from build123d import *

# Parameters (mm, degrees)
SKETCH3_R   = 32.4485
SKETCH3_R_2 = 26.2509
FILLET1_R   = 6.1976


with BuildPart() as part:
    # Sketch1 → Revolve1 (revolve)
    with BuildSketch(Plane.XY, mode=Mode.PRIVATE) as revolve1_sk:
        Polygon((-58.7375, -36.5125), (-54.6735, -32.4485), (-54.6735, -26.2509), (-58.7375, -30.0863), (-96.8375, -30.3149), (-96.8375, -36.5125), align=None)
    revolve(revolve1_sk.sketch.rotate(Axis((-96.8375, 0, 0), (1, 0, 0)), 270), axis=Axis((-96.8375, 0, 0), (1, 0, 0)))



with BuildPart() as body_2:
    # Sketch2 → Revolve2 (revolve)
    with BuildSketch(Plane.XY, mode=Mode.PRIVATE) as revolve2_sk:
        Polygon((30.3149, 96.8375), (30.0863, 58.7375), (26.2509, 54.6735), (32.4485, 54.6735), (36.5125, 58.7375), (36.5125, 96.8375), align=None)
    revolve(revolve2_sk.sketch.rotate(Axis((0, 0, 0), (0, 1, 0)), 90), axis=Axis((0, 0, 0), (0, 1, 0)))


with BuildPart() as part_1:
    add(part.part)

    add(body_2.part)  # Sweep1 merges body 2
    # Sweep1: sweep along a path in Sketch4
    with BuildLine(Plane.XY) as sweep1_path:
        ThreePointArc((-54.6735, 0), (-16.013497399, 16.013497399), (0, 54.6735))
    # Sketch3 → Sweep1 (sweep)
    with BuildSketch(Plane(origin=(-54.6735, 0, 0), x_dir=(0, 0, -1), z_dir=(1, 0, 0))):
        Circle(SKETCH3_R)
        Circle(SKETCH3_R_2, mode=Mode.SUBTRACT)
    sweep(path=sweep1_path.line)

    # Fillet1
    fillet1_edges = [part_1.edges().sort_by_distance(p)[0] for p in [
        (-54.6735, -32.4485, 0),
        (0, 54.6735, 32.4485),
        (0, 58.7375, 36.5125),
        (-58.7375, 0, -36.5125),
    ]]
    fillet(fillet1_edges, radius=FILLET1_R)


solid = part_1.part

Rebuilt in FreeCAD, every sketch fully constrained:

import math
import FreeCAD as App
import Part
import Sketcher

V = App.Vector
Q = App.Units.Quantity


def edges_at(feature, points):
    """Names of the edges that pass closest to the given points."""
    edges = feature.Shape.Edges
    near = lambda p: min(range(len(edges)), key=lambda i: edges[i].distToShape(Part.Vertex(*p))[0])
    return sorted({f"Edge{near(p) + 1}" for p in points})

doc = App.newDocument("Part")
body = doc.addObject("PartDesign::Body", "Body")

sketch1 = body.newObject("Sketcher::SketchObject", "Sketch")
sketch1.AttachmentSupport = (doc.getObject("XY_Plane"), [""])
sketch1.MapMode = "FlatFace"
sketch1.addGeometry([
    Part.LineSegment(V(-59, -37, 0), V(-55, -32, 0)),
    Part.LineSegment(V(-55, -32, 0), V(-55, -26, 0)),
    Part.LineSegment(V(-55, -26, 0), V(-59, -30, 0)),
    Part.LineSegment(V(-59, -30, 0), V(-97, -30, 0)),
    Part.LineSegment(V(-97, -30, 0), V(-97, -37, 0)),
    Part.LineSegment(V(-97, -37, 0), V(-59, -37, 0)),
], False)
sketch1.addConstraint([
    Sketcher.Constraint("Coincident", 0, 2, 1, 1),
    Sketcher.Constraint("Coincident", 1, 2, 2, 1),
    Sketcher.Constraint("Coincident", 2, 2, 3, 1),
    Sketcher.Constraint("Coincident", 3, 2, 4, 1),
    Sketcher.Constraint("Coincident", 4, 2, 5, 1),
    Sketcher.Constraint("Coincident", 5, 2, 0, 1),
    Sketcher.Constraint("Vertical", 1),
    Sketcher.Constraint("Vertical", 4),
    Sketcher.Constraint("Horizontal", 5),
    Sketcher.Constraint("Vertical", 2, 2, 5, 2),
    Sketcher.Constraint("Equal", 1, 4),
    Sketcher.Constraint("DistanceX", 5, 1, 5, 2, Q("1.5 in")),
    Sketcher.Constraint("Angle", 0, Q("45 deg")),
    Sketcher.Constraint("DistanceY", 1, 1, 1, 2, Q("0.244 in")),
    Sketcher.Constraint("DistanceX", 2, 2, 0, 2, Q("0.16 in")),
    Sketcher.Constraint("DistanceX", 2, 2, -1, 1, Q("2.3125 in")),
    Sketcher.Constraint("DistanceY", 4, 2, -1, 1, Q("1.4375 in")),
    Sketcher.Constraint("DistanceY", 0, 2, 2, 2, Q("0.093 in")),
])
revolution = body.newObject("PartDesign::Revolution", "Revolution")
revolution.Profile = sketch1
revolution.ReferenceAxis = (sketch1, ["H_Axis"])
revolution.Angle = 360
body2 = doc.addObject("PartDesign::Body", "Body001")

sketch2 = body2.newObject("Sketcher::SketchObject", "Sketch001")
sketch2.AttachmentSupport = (doc.getObject("XY_Plane001"), [""])
sketch2.MapMode = "FlatFace"
sketch2.addGeometry([
    Part.LineSegment(V(30, 97, 0), V(30, 59, 0)),
    Part.LineSegment(V(30, 59, 0), V(26, 55, 0)),
    Part.LineSegment(V(26, 55, 0), V(32, 55, 0)),
    Part.LineSegment(V(32, 55, 0), V(37, 59, 0)),
    Part.LineSegment(V(37, 59, 0), V(37, 97, 0)),
    Part.LineSegment(V(37, 97, 0), V(30, 97, 0)),
], False)
sketch2.addConstraint([
    Sketcher.Constraint("Coincident", 0, 2, 1, 1),
    Sketcher.Constraint("Coincident", 1, 2, 2, 1),
    Sketcher.Constraint("Coincident", 2, 2, 3, 1),
    Sketcher.Constraint("Coincident", 3, 2, 4, 1),
    Sketcher.Constraint("Coincident", 4, 2, 5, 1),
    Sketcher.Constraint("Coincident", 5, 2, 0, 1),
    Sketcher.Constraint("Horizontal", 2),
    Sketcher.Constraint("Vertical", 4),
    Sketcher.Constraint("Horizontal", 5),
    Sketcher.Constraint("Horizontal", 0, 2, 3, 2),
    Sketcher.Constraint("Equal", 2, 5),
    Sketcher.Constraint("DistanceY", 4, 1, 4, 2, Q("1.5 in")),
    Sketcher.Constraint("Angle", 3, Q("45 deg")),
    Sketcher.Constraint("DistanceX", 2, 1, 2, 2, Q("0.244 in")),
    Sketcher.Constraint("DistanceY", 1, 2, 0, 2, Q("0.16 in")),
    Sketcher.Constraint("DistanceY", -1, 1, 0, 2, Q("2.3125 in")),
    Sketcher.Constraint("DistanceX", -1, 1, 3, 2, Q("1.4375 in")),
    Sketcher.Constraint("DistanceX", 1, 2, 0, 2, Q("0.151 in")),
])
revolution2 = body2.newObject("PartDesign::Revolution", "Revolution001")
revolution2.Profile = sketch2
revolution2.ReferenceAxis = (sketch2, ["V_Axis"])
revolution2.Angle = 360
body.AllowCompound = True
doc.recompute()

boolean = body.newObject("PartDesign::Boolean", "Boolean")
boolean.Type = "Fuse"
boolean.addObjects([body2])

sketch3 = body.newObject("Sketcher::SketchObject", "Sketch002")
sketch3.AttachmentSupport = (doc.getObject("YZ_Plane"), [""])
sketch3.MapMode = "FlatFace"
sketch3.AttachmentOffset = App.Placement(V(0, 0, -2.1525 * 25.4), App.Rotation())
sketch3.addGeometry([
    Part.Circle(V(0, 0, 0), V(0, 0, 1), 32),
    Part.Circle(V(0, 0, 0), V(0, 0, 1), 26),
], False)
sketch3.addConstraint([
    Sketcher.Constraint("Coincident", 0, 3, -1, 1),
    Sketcher.Constraint("Coincident", 1, 3, -1, 1),
    Sketcher.Constraint("Diameter", 0, Q("2.555 in")),
    Sketcher.Constraint("Diameter", 1, Q("2.067 in")),
])

sketch4 = body.newObject("Sketcher::SketchObject", "Sketch003")
sketch4.AttachmentSupport = (doc.getObject("XY_Plane"), [""])
sketch4.MapMode = "FlatFace"
sketch4.addGeometry(Part.ArcOfCircle(Part.Circle(V(-55, 55, 0), V(0, 0, 1), 55), math.radians(-90), math.radians(0)), False)
sketch4.addConstraint([
    Sketcher.Constraint("PointOnObject", 0, 1, -1),
    Sketcher.Constraint("PointOnObject", 0, 2, -2),
    Sketcher.Constraint("Radius", 0, Q("2.1525 in")),
    Sketcher.Constraint("DistanceX", 0, 1, -1, 1, Q("2.1525 in")),
    Sketcher.Constraint("DistanceY", -1, 1, 0, 2, Q("2.1525 in")),
])
doc.recompute()

additivepipe = body.newObject("PartDesign::AdditivePipe", "AdditivePipe")
additivepipe.Profile = sketch3
additivepipe.Spine = (sketch4, ["Edge1"])
doc.recompute()

fillet = body.newObject("PartDesign::Fillet", "Fillet")
fillet.Base = (additivepipe, edges_at(additivepipe, [
    (-54.673, -32.449, 0),
    (0, 54.673, 32.449),
    (0, 58.737, 36.513),
    (-58.737, 0, -36.513),
]))
fillet.Radius = Q("0.244 in")

doc.recompute()
